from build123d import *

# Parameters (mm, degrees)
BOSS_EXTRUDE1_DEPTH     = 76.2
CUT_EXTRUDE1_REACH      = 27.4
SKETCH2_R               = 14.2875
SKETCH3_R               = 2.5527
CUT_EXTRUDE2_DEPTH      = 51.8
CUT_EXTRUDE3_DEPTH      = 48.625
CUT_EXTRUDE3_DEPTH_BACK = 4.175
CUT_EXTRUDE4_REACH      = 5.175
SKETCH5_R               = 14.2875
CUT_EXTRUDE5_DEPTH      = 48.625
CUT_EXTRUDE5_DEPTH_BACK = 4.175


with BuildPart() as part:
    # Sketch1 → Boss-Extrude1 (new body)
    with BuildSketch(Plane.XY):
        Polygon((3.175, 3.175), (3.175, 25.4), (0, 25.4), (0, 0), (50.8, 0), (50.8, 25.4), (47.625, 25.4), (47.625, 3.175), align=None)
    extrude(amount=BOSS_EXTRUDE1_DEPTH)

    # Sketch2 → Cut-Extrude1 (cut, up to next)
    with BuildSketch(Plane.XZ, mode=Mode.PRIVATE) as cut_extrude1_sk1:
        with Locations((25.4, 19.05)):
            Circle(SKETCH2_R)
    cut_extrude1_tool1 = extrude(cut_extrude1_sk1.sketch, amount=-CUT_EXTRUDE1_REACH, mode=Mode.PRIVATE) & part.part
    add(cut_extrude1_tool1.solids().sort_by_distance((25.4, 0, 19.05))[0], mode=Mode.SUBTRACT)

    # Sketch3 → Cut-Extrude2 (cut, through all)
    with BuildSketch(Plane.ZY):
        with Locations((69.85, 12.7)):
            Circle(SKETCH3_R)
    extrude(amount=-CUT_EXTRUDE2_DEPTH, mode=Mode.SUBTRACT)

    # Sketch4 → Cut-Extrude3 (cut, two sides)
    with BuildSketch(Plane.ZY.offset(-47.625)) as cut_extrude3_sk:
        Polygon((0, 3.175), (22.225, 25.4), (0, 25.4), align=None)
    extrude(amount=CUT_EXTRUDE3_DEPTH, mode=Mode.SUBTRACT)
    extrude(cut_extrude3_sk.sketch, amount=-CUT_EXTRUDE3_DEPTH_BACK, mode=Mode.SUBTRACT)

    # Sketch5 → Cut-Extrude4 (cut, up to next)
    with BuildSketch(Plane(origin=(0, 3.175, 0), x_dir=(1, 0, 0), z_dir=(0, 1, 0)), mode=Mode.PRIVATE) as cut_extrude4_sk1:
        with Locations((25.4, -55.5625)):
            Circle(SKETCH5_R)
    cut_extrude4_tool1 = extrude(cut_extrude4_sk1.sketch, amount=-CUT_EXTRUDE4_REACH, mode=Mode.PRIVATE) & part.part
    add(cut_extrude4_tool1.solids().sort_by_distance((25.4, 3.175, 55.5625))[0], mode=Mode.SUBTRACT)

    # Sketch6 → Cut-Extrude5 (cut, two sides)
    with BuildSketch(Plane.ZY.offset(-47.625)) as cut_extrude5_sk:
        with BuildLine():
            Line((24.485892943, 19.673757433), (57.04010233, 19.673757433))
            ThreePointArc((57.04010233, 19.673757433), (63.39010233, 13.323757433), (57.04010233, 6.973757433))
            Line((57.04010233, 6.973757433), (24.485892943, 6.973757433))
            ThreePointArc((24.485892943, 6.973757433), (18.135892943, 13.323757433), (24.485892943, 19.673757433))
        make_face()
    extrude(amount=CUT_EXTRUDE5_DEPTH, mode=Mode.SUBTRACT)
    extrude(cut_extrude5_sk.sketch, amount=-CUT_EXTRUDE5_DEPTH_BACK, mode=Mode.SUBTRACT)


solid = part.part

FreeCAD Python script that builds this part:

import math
import FreeCAD as App
import Part
import Sketcher
Q = App.Units.Quantity

doc = App.newDocument("Part")
params = doc.addObject("Spreadsheet::Sheet", "Params")
for row, (alias, value) in enumerate([
    ("sketch1_width", "2 in"),
    ("sketch1_height", "1 in"),
    ("sketch1_width2", "1.75 in"),
    ("sketch1_height2", "0.875 in"),
    ("pad1_length", "3 in"),
    ("sketch2_diameter", "1.125 in"),
    ("sketch3_diameter", "0.201 in"),
    ("sketch4_width", "0.875 in"),
    ("sketch5_diameter", "1.125 in"),
    ("sketch6_radius", "0.25 in"),
], start=1):
    params.set(f"A{row}", alias)
    params.set(f"B{row}", "=" + value)
    params.setAlias(f"B{row}", alias)

body = doc.addObject("PartDesign::Body", "Body")

sketch1 = doc.addObject("Sketcher::SketchObject", "Sketch")
body.addObject(sketch1)
sketch1.AttachmentSupport = (doc.XY_Plane, [""])
sketch1.MapMode = "FlatFace"
sketch1.addGeometry(Part.LineSegment(App.Vector(3.2, 3.2, 0), App.Vector(3.2, 25.4, 0)), False)
sketch1.addGeometry(Part.LineSegment(App.Vector(3.2, 25.4, 0), App.Vector(0, 25.4, 0)), False)
sketch1.addGeometry(Part.LineSegment(App.Vector(0, 25.4, 0), App.Vector(0, 0, 0)), False)
sketch1.addGeometry(Part.LineSegment(App.Vector(0, 0, 0), App.Vector(50.8, 0, 0)), False)
sketch1.addGeometry(Part.LineSegment(App.Vector(50.8, 0, 0), App.Vector(50.8, 25.4, 0)), False)
sketch1.addGeometry(Part.LineSegment(App.Vector(50.8, 25.4, 0), App.Vector(47.6, 25.4, 0)), False)
sketch1.addGeometry(Part.LineSegment(App.Vector(47.6, 25.4, 0), App.Vector(47.6, 3.2, 0)), False)
sketch1.addGeometry(Part.LineSegment(App.Vector(47.6, 3.2, 0), App.Vector(3.2, 3.2, 0)), False)
sketch1.addConstraint(Sketcher.Constraint("Coincident", 0, 2, 1, 1))
sketch1.addConstraint(Sketcher.Constraint("Coincident", 1, 2, 2, 1))
sketch1.addConstraint(Sketcher.Constraint("Coincident", 2, 2, 3, 1))
sketch1.addConstraint(Sketcher.Constraint("Coincident", 3, 2, 4, 1))
sketch1.addConstraint(Sketcher.Constraint("Coincident", 4, 2, 5, 1))
sketch1.addConstraint(Sketcher.Constraint("Coincident", 5, 2, 6, 1))
sketch1.addConstraint(Sketcher.Constraint("Coincident", 6, 2, 7, 1))
sketch1.addConstraint(Sketcher.Constraint("Coincident", 7, 2, 0, 1))
sketch1.addConstraint(Sketcher.Constraint("Vertical", 0))
sketch1.addConstraint(Sketcher.Constraint("Horizontal", 1))
sketch1.addConstraint(Sketcher.Constraint("Vertical", 2))
sketch1.addConstraint(Sketcher.Constraint("Horizontal", 3))
sketch1.addConstraint(Sketcher.Constraint("Vertical", 4))
sketch1.addConstraint(Sketcher.Constraint("Horizontal", 5))
sketch1.addConstraint(Sketcher.Constraint("Vertical", 6))
sketch1.addConstraint(Sketcher.Constraint("Horizontal", 7))
sketch1.addConstraint(Sketcher.Constraint("Coincident", 2, 2, -1, 1))
sketch1.addConstraint(Sketcher.Constraint("Horizontal", 1, 2, 4, 2))
sketch1.addConstraint(Sketcher.Constraint("Equal", 1, 5))
sketch1.addConstraint(Sketcher.Constraint("DistanceX", 3, 1, 3, 2, Q("2 in")))
sketch1.addConstraint(Sketcher.Constraint("DistanceY", 2, 2, 2, 1, Q("1 in")))
sketch1.addConstraint(Sketcher.Constraint("DistanceX", 7, 2, 7, 1, Q("1.75 in")))
sketch1.addConstraint(Sketcher.Constraint("DistanceY", 0, 1, 0, 2, Q("0.875 in")))
sketch1.setExpression("Constraints[19]", "Params.sketch1_width")
sketch1.setExpression("Constraints[20]", "Params.sketch1_height")
sketch1.setExpression("Constraints[21]", "Params.sketch1_width2")
sketch1.setExpression("Constraints[22]", "Params.sketch1_height2")
pad1 = doc.addObject("PartDesign::Pad", "Pad")
body.addObject(pad1)
pad1.Profile = sketch1
pad1.setExpression("Length", "Params.pad1_length")

sketch2 = doc.addObject("Sketcher::SketchObject", "Sketch001")
body.addObject(sketch2)
sketch2.AttachmentSupport = (doc.XZ_Plane, [""])
sketch2.MapMode = "FlatFace"
sketch2.addGeometry(Part.Circle(App.Vector(25, 19, 0), App.Vector(0, 0, 1), 14), False)
sketch2.addConstraint(Sketcher.Constraint("Diameter", 0, Q("1.125 in")))
sketch2.addConstraint(Sketcher.Constraint("DistanceX", -1, 1, 0, 3, Q("1 in")))
sketch2.addConstraint(Sketcher.Constraint("DistanceY", -1, 1, 0, 3, Q("0.75 in")))
sketch2.setExpression("Constraints[0]", "Params.sketch2_diameter")
pocket1 = doc.addObject("PartDesign::Pocket", "Pocket")
body.addObject(pocket1)
pocket1.Profile = sketch2
pocket1.Type = "UpToFirst"

sketch3 = doc.addObject("Sketcher::SketchObject", "Sketch002")
body.addObject(sketch3)
sketch3.AttachmentSupport = (doc.YZ_Plane, [""])
sketch3.MapMode = "FlatFace"
sketch3.addGeometry(Part.Circle(App.Vector(12.7, 69.8, 0), App.Vector(0, 0, 1), 2.6), False)
sketch3.addConstraint(Sketcher.Constraint("Diameter", 0, Q("0.201 in")))
sketch3.addConstraint(Sketcher.Constraint("DistanceX", -1, 1, 0, 3, Q("0.5 in")))
sketch3.addConstraint(Sketcher.Constraint("DistanceY", -1, 1, 0, 3, Q("2.75 in")))
sketch3.setExpression("Constraints[0]", "Params.sketch3_diameter")
pocket2 = doc.addObject("PartDesign::Pocket", "Pocket001")
body.addObject(pocket2)
pocket2.Profile = sketch3
pocket2.Type = "ThroughAll"
pocket2.Reversed = True

sketch4 = doc.addObject("Sketcher::SketchObject", "Sketch003")
body.addObject(sketch4)
sketch4.AttachmentSupport = (doc.YZ_Plane, [""])
sketch4.MapMode = "FlatFace"
sketch4.AttachmentOffset = App.Placement(App.Vector(0, 0, 1.875 * 25.4), App.Rotation())
sketch4.addGeometry(Part.LineSegment(App.Vector(3, 0, 0), App.Vector(25, 22, 0)), False)
sketch4.addGeometry(Part.LineSegment(App.Vector(25, 22, 0), App.Vector(25, 0, 0)), False)
sketch4.addGeometry(Part.LineSegment(App.Vector(25, 0, 0), App.Vector(3, 0, 0)), False)
sketch4.addConstraint(Sketcher.Constraint("Coincident", 0, 2, 1, 1))
sketch4.addConstraint(Sketcher.Constraint("Coincident", 1, 2, 2, 1))
sketch4.addConstraint(Sketcher.Constraint("Coincident", 2, 2, 0, 1))
sketch4.addConstraint(Sketcher.Constraint("Vertical", 1))
sketch4.addConstraint(Sketcher.Constraint("Horizontal", 2))
sketch4.addConstraint(Sketcher.Constraint("PointOnObject", 1, 2, -1))
sketch4.addConstraint(Sketcher.Constraint("Equal", 2, 1))
sketch4.addConstraint(Sketcher.Constraint("DistanceX", -1, 1, 0, 2, Q("1 in")))
sketch4.addConstraint(Sketcher.Constraint("DistanceX", 2, 2, 2, 1, Q("0.875 in")))
sketch4.setExpression("Constraints[8]", "Params.sketch4_width")
pocket3 = doc.addObject("PartDesign::Pocket", "Pocket002")
body.addObject(pocket3)
pocket3.Profile = sketch4
pocket3.Type = "ThroughAll"
pocket3.Midplane = True

sketch5 = doc.addObject("Sketcher::SketchObject", "Sketch004")
body.addObject(sketch5)
sketch5.AttachmentSupport = (doc.XZ_Plane, [""])
sketch5.MapMode = "FlatFace"
sketch5.AttachmentOffset = App.Placement(App.Vector(0, 0, -0.125 * 25.4), App.Rotation())
sketch5.addGeometry(Part.Circle(App.Vector(25, 56, 0), App.Vector(0, 0, 1), 14), False)
sketch5.addConstraint(Sketcher.Constraint("Diameter", 0, Q("1.125 in")))
sketch5.addConstraint(Sketcher.Constraint("DistanceX", -1, 1, 0, 3, Q("1 in")))
sketch5.addConstraint(Sketcher.Constraint("DistanceY", -1, 1, 0, 3, Q("2.1875 in")))
sketch5.setExpression("Constraints[0]", "Params.sketch5_diameter")
pocket4 = doc.addObject("PartDesign::Pocket", "Pocket003")
body.addObject(pocket4)
pocket4.Profile = sketch5
pocket4.Type = "UpToFirst"
pocket4.Reversed = True

sketch6 = doc.addObject("Sketcher::SketchObject", "Sketch005")
body.addObject(sketch6)
sketch6.AttachmentSupport = (doc.YZ_Plane, [""])
sketch6.MapMode = "FlatFace"
sketch6.AttachmentOffset = App.Placement(App.Vector(0, 0, 1.875 * 25.4), App.Rotation())
sketch6.addGeometry(Part.LineSegment(App.Vector(20, 57, 0), App.Vector(20, 24, 0)), False)
sketch6.addGeometry(Part.ArcOfCircle(Part.Circle(App.Vector(13, 24, 0), App.Vector(0, 0, 1), 6), math.radians(180), math.radians(360)), False)
sketch6.addGeometry(Part.LineSegment(App.Vector(7, 24, 0), App.Vector(7, 57, 0)), False)
sketch6.addGeometry(Part.ArcOfCircle(Part.Circle(App.Vector(13, 57, 0), App.Vector(0, 0, 1), 6), math.radians(0), math.radians(180)), False)
sketch6.addConstraint(Sketcher.Constraint("Tangent", 0, 2, 1, 2))
sketch6.addConstraint(Sketcher.Constraint("Tangent", 1, 1, 2, 1))
sketch6.addConstraint(Sketcher.Constraint("Tangent", 2, 2, 3, 2))
sketch6.addConstraint(Sketcher.Constraint("Tangent", 3, 1, 0, 1))
sketch6.addConstraint(Sketcher.Constraint("Vertical", 0))
sketch6.addConstraint(Sketcher.Constraint("Vertical", 2))
sketch6.addConstraint(Sketcher.Constraint("Radius", 1, Q("0.25 in")))
sketch6.addConstraint(Sketcher.Constraint("DistanceY", 0, 2, 0, 1, Q("32.554209 mm")))
sketch6.addConstraint(Sketcher.Constraint("DistanceX", -1, 1, 1, 3, Q("13.323757 mm")))
sketch6.addConstraint(Sketcher.Constraint("DistanceY", -1, 1, 1, 3, Q("24.485893 mm")))
sketch6.setExpression("Constraints[6]", "Params.sketch6_radius")
pocket5 = doc.addObject("PartDesign::Pocket", "Pocket004")
body.addObject(pocket5)
pocket5.Profile = sketch6
pocket5.Type = "ThroughAll"
pocket5.Midplane = True

doc.recompute()
